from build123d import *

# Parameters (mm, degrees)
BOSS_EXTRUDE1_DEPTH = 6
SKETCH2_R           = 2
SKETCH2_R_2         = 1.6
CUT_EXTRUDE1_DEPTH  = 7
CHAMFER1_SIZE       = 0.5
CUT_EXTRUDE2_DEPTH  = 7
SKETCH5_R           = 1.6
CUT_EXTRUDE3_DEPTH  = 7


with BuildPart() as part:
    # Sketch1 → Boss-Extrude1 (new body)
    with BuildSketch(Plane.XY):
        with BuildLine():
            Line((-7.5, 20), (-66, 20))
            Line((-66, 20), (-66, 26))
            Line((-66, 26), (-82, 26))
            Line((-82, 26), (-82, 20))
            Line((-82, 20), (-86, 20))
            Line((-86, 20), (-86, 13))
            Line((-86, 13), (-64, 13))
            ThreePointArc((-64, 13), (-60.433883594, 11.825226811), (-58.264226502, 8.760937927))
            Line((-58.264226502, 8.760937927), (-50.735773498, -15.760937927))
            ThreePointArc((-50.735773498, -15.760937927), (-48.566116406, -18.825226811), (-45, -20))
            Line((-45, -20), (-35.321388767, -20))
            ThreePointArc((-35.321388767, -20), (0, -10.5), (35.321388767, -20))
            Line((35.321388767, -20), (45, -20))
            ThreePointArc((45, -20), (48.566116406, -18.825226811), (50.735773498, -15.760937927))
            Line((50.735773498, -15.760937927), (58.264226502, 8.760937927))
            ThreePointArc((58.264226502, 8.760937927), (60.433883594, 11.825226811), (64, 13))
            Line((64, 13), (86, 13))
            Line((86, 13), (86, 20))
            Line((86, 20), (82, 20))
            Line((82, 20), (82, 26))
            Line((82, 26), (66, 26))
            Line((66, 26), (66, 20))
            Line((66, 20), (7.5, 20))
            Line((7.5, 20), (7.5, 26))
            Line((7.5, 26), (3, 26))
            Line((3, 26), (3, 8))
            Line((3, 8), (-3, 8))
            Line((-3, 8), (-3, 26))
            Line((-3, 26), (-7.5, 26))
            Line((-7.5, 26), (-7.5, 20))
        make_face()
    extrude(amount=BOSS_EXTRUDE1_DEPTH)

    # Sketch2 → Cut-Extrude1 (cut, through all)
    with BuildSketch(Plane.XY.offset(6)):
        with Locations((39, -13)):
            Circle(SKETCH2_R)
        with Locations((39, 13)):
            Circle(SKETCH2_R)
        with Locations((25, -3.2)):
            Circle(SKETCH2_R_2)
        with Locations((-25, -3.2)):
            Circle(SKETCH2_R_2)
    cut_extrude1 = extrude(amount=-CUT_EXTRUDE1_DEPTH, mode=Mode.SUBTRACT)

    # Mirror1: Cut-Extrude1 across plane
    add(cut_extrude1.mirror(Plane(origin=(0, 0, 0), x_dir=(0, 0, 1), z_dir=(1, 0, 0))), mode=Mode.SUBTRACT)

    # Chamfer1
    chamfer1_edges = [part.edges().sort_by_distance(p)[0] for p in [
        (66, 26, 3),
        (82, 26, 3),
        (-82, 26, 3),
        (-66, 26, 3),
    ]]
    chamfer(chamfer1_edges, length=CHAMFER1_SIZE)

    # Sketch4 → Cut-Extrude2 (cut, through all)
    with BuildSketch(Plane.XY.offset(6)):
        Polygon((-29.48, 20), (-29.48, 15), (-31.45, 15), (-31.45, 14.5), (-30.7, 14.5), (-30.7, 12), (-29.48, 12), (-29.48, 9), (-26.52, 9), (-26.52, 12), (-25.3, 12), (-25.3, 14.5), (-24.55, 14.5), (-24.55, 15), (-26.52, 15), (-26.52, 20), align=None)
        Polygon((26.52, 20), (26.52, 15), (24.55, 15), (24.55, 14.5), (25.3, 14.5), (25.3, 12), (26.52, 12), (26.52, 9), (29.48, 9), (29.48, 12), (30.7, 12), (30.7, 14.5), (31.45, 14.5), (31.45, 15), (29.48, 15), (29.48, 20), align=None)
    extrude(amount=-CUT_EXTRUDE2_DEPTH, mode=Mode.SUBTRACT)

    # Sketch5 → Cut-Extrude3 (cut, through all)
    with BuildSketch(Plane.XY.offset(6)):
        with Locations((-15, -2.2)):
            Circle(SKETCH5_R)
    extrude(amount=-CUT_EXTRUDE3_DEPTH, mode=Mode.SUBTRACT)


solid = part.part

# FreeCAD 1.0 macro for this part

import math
import FreeCAD as App
import Part
import Sketcher


def edges_at(feature, points):
    """Names of the edges that pass closest to the given points."""
    edges = feature.Shape.Edges
    near = lambda p: min(range(len(edges)), key=lambda i: edges[i].distToShape(Part.Vertex(*p))[0])
    return sorted({f"Edge{near(p) + 1}" for p in points})

doc = App.newDocument("Part")
body = doc.addObject("PartDesign::Body", "Body")

# Sketch on XY plane
sketch1 = body.newObject("Sketcher::SketchObject", "Sketch")
sketch1.AttachmentSupport = (doc.getObject("XY_Plane"), [""])
sketch1.MapMode = "FlatFace"
sketch1.addGeometry([
    Part.LineSegment(App.Vector(-7.5, 20, 0), App.Vector(-66, 20, 0)),  # 0
    Part.LineSegment(App.Vector(-66, 20, 0), App.Vector(-66, 26, 0)),  # 1
    Part.LineSegment(App.Vector(-66, 26, 0), App.Vector(-82, 26, 0)),  # 2
    Part.LineSegment(App.Vector(-82, 26, 0), App.Vector(-82, 20, 0)),  # 3
    Part.LineSegment(App.Vector(-82, 20, 0), App.Vector(-86, 20, 0)),  # 4
    Part.LineSegment(App.Vector(-86, 20, 0), App.Vector(-86, 13, 0)),  # 5
    Part.LineSegment(App.Vector(-86, 13, 0), App.Vector(-64, 13, 0)),  # 6
    Part.ArcOfCircle(Part.Circle(App.Vector(-64, 7, 0), App.Vector(0, 0, 1), 6), math.radians(17), math.radians(90)),  # 7
    Part.LineSegment(App.Vector(-58.3, 8.8, 0), App.Vector(-50.7, -15.8, 0)),  # 8
    Part.ArcOfCircle(Part.Circle(App.Vector(-45, -14, 0), App.Vector(0, 0, 1), 6), math.radians(-163), math.radians(-90)),  # 9
    Part.LineSegment(App.Vector(-45, -20, 0), App.Vector(-35.3, -20, 0)),  # 10
    Part.ArcOfCircle(Part.Circle(App.Vector(0, -80.9, 0), App.Vector(0, 0, 1), 70.4), math.radians(60), math.radians(120)),  # 11
    Part.LineSegment(App.Vector(35.3, -20, 0), App.Vector(45, -20, 0)),  # 12
    Part.ArcOfCircle(Part.Circle(App.Vector(45, -14, 0), App.Vector(0, 0, 1), 6), math.radians(-90), math.radians(-17)),  # 13
    Part.LineSegment(App.Vector(50.7, -15.8, 0), App.Vector(58.3, 8.8, 0)),  # 14
    Part.ArcOfCircle(Part.Circle(App.Vector(64, 7, 0), App.Vector(0, 0, 1), 6), math.radians(90), math.radians(163)),  # 15
    Part.LineSegment(App.Vector(64, 13, 0), App.Vector(86, 13, 0)),  # 16
    Part.LineSegment(App.Vector(86, 13, 0), App.Vector(86, 20, 0)),  # 17
    Part.LineSegment(App.Vector(86, 20, 0), App.Vector(82, 20, 0)),  # 18
    Part.LineSegment(App.Vector(82, 20, 0), App.Vector(82, 26, 0)),  # 19
    Part.LineSegment(App.Vector(82, 26, 0), App.Vector(66, 26, 0)),  # 20
    Part.LineSegment(App.Vector(66, 26, 0), App.Vector(66, 20, 0)),  # 21
    Part.LineSegment(App.Vector(66, 20, 0), App.Vector(7.5, 20, 0)),  # 22
    Part.LineSegment(App.Vector(7.5, 20, 0), App.Vector(7.5, 26, 0)),  # 23
    Part.LineSegment(App.Vector(7.5, 26, 0), App.Vector(3, 26, 0)),  # 24
    Part.LineSegment(App.Vector(3, 26, 0), App.Vector(3, 8, 0)),  # 25
    Part.LineSegment(App.Vector(3, 8, 0), App.Vector(-3, 8, 0)),  # 26
    Part.LineSegment(App.Vector(-3, 8, 0), App.Vector(-3, 26, 0)),  # 27
    Part.LineSegment(App.Vector(-3, 26, 0), App.Vector(-7.5, 26, 0)),  # 28
    Part.LineSegment(App.Vector(-7.5, 26, 0), App.Vector(-7.5, 20, 0)),  # 29
], False)
sketch1.addConstraint([
    Sketcher.Constraint("Coincident", 0, 2, 1, 1),
    Sketcher.Constraint("Coincident", 1, 2, 2, 1),
    Sketcher.Constraint("Coincident", 2, 2, 3, 1),
    Sketcher.Constraint("Coincident", 3, 2, 4, 1),
    Sketcher.Constraint("Coincident", 4, 2, 5, 1),
    Sketcher.Constraint("Coincident", 5, 2, 6, 1),
    Sketcher.Constraint("Tangent", 6, 2, 7, 2),
    Sketcher.Constraint("Tangent", 7, 1, 8, 1),
    Sketcher.Constraint("Tangent", 8, 2, 9, 1),
    Sketcher.Constraint("Tangent", 9, 2, 10, 1),
    Sketcher.Constraint("Coincident", 10, 2, 11, 2),
    Sketcher.Constraint("Coincident", 11, 1, 12, 1),
    Sketcher.Constraint("Tangent", 12, 2, 13, 1),
    Sketcher.Constraint("Tangent", 13, 2, 14, 1),
    Sketcher.Constraint("Tangent", 14, 2, 15, 2),
    Sketcher.Constraint("Tangent", 15, 1, 16, 1),
    Sketcher.Constraint("Coincident", 16, 2, 17, 1),
    Sketcher.Constraint("Coincident", 17, 2, 18, 1),
    Sketcher.Constraint("Coincident", 18, 2, 19, 1),
    Sketcher.Constraint("Coincident", 19, 2, 20, 1),
    Sketcher.Constraint("Coincident", 20, 2, 21, 1),
    Sketcher.Constraint("Coincident", 21, 2, 22, 1),
    Sketcher.Constraint("Coincident", 22, 2, 23, 1),
    Sketcher.Constraint("Coincident", 23, 2, 24, 1),
    Sketcher.Constraint("Coincident", 24, 2, 25, 1),
    Sketcher.Constraint("Coincident", 25, 2, 26, 1),
    Sketcher.Constraint("Coincident", 26, 2, 27, 1),
    Sketcher.Constraint("Coincident", 27, 2, 28, 1),
    Sketcher.Constraint("Coincident", 28, 2, 29, 1),
    Sketcher.Constraint("Coincident", 29, 2, 0, 1),
    Sketcher.Constraint("Horizontal", 0),
    Sketcher.Constraint("Vertical", 1),
    Sketcher.Constraint("Horizontal", 2),
    Sketcher.Constraint("Vertical", 3),
    Sketcher.Constraint("Horizontal", 4),
    Sketcher.Constraint("Vertical", 5),
    Sketcher.Constraint("Horizontal", 6),
    Sketcher.Constraint("Horizontal", 10),
    Sketcher.Constraint("Horizontal", 12),
    Sketcher.Constraint("Horizontal", 16),
    Sketcher.Constraint("Vertical", 17),
    Sketcher.Constraint("Horizontal", 18),
    Sketcher.Constraint("Vertical", 19),
    Sketcher.Constraint("Horizontal", 20),
    Sketcher.Constraint("Vertical", 21),
    Sketcher.Constraint("Horizontal", 22),
    Sketcher.Constraint("Vertical", 23),
    Sketcher.Constraint("Horizontal", 24),
    Sketcher.Constraint("Vertical", 25),
    Sketcher.Constraint("Horizontal", 26),
    Sketcher.Constraint("Vertical", 27),
    Sketcher.Constraint("Horizontal", 28),
    Sketcher.Constraint("Vertical", 29),
    Sketcher.Constraint("Equal", 7, 9),
    Sketcher.Constraint("Equal", 9, 13),
    Sketcher.Constraint("Equal", 13, 15),
    Sketcher.Constraint("Symmetric", 9, 3, 13, 3, -2),
    Sketcher.Constraint("Symmetric", 7, 3, 15, 3, -2),
    Sketcher.Constraint("Symmetric", 4, 2, 17, 2, -2),
    Sketcher.Constraint("Symmetric", 2, 2, 19, 2, -2),
    Sketcher.Constraint("Symmetric", 0, 2, 21, 2, -2),
    Sketcher.Constraint("Symmetric", 24, 2, 27, 2, -2),
    Sketcher.Constraint("PointOnObject", 11, 3, -2),
    Sketcher.Constraint("Horizontal", 0, 2, 3, 2),
    Sketcher.Constraint("Horizontal", 20, 2, 23, 2),
    Sketcher.Constraint("Equal", 0, 22),
    Sketcher.Constraint("Equal", 26, 1),
    Sketcher.Constraint("Radius", 7, 6.0),
    Sketcher.Constraint("DistanceX", 2, 2, 2, 1, 16.0),
    Sketcher.Constraint("DistanceX", 4, 2, 4, 1, 4.0),
    Sketcher.Constraint("DistanceX", 6, 1, 6, 2, 22.0),
    Sketcher.Constraint("DistanceX", 26, 2, 26, 1, 6.0),
    Sketcher.Constraint("DistanceY", 5, 2, 5, 1, 7.0),
    Sketcher.Constraint("DistanceY", 25, 2, 25, 1, 18.0),
    Sketcher.Constraint("DistanceX", 0, 2, 0, 1, 58.5),
    Sketcher.Constraint("DistanceX", 24, 2, 24, 1, 4.5),
    Sketcher.Constraint("DistanceY", -1, 1, 7, 3, 7.0),
    Sketcher.Constraint("DistanceX", 9, 3, -1, 1, 45.0),
    Sketcher.Constraint("DistanceY", 9, 3, -1, 1, 14.0),
    Sketcher.Constraint("Radius", 11, 70.413184),
    Sketcher.Constraint("DistanceX", 10, 1, 10, 2, 9.678611),
])
pad1 = body.newObject("PartDesign::Pad", "Pad")
pad1.Profile = sketch1
pad1.Length = 6

# Sketch on XY plane
sketch2 = body.newObject("Sketcher::SketchObject", "Sketch001")
sketch2.AttachmentSupport = (doc.getObject("XY_Plane"), [""])
sketch2.MapMode = "FlatFace"
sketch2.AttachmentOffset = App.Placement(App.Vector(0, 0, 6), App.Rotation())
sketch2.addGeometry([
    Part.Circle(App.Vector(39, -13, 0), App.Vector(0, 0, 1), 2),
    Part.Circle(App.Vector(39, 13, 0), App.Vector(0, 0, 1), 2),
    Part.Circle(App.Vector(25, -3.2, 0), App.Vector(0, 0, 1), 1.6),
    Part.Circle(App.Vector(-25, -3.2, 0), App.Vector(0, 0, 1), 1.6),
], False)
sketch2.addConstraint([
    Sketcher.Constraint("Equal", 0, 1),
    Sketcher.Constraint("Equal", 2, 3),
    Sketcher.Constraint("Symmetric", 2, 3, 3, 3, -2),
    Sketcher.Constraint("Symmetric", 0, 3, 1, 3, -1),
    Sketcher.Constraint("Diameter", 0, 4.0),
    Sketcher.Constraint("Diameter", 2, 3.2),
    Sketcher.Constraint("DistanceX", -1, 1, 0, 3, 39.0),
    Sketcher.Constraint("DistanceY", 0, 3, -1, 1, 13.0),
    Sketcher.Constraint("DistanceX", -1, 1, 2, 3, 25.0),
    Sketcher.Constraint("DistanceY", 2, 3, -1, 1, 3.2),
])
pocket1 = body.newObject("PartDesign::Pocket", "Pocket")
pocket1.Profile = sketch2
pocket1.Type = "ThroughAll"
doc.recompute()

mirrored = body.newObject("PartDesign::Mirrored", "Mirrored")
mirrored.Originals = [pocket1]
mirrored.MirrorPlane = (doc.getObject("YZ_Plane"), [""])
body.Tip = mirrored
doc.recompute()

chamfer = body.newObject("PartDesign::Chamfer", "Chamfer")
chamfer.Base = (mirrored, edges_at(mirrored, [
    (66, 26, 3),
    (82, 26, 3),
    (-82, 26, 3),
    (-66, 26, 3),
]))
chamfer.Size = 0.5

# Sketch on XY plane
sketch3 = body.newObject("Sketcher::SketchObject", "Sketch002")
sketch3.AttachmentSupport = (doc.getObject("XY_Plane"), [""])
sketch3.MapMode = "FlatFace"
sketch3.AttachmentOffset = App.Placement(App.Vector(0, 0, 6), App.Rotation())
sketch3.addGeometry([
    Part.LineSegment(App.Vector(-29.5, 20, 0), App.Vector(-29.5, 15, 0)),  # 0
    Part.LineSegment(App.Vector(-29.5, 15, 0), App.Vector(-31.4, 15, 0)),  # 1
    Part.LineSegment(App.Vector(-31.4, 15, 0), App.Vector(-31.4, 14.5, 0)),  # 2
    Part.LineSegment(App.Vector(-31.4, 14.5, 0), App.Vector(-30.7, 14.5, 0)),  # 3
    Part.LineSegment(App.Vector(-30.7, 14.5, 0), App.Vector(-30.7, 12, 0)),  # 4
    Part.LineSegment(App.Vector(-30.7, 12, 0), App.Vector(-29.5, 12, 0)),  # 5
    Part.LineSegment(App.Vector(-29.5, 12, 0), App.Vector(-29.5, 9, 0)),  # 6
    Part.LineSegment(App.Vector(-29.5, 9, 0), App.Vector(-26.5, 9, 0)),  # 7
    Part.LineSegment(App.Vector(-26.5, 9, 0), App.Vector(-26.5, 12, 0)),  # 8
    Part.LineSegment(App.Vector(-26.5, 12, 0), App.Vector(-25.3, 12, 0)),  # 9
    Part.LineSegment(App.Vector(-25.3, 12, 0), App.Vector(-25.3, 14.5, 0)),  # 10
    Part.LineSegment(App.Vector(-25.3, 14.5, 0), App.Vector(-24.6, 14.5, 0)),  # 11
    Part.LineSegment(App.Vector(-24.6, 14.5, 0), App.Vector(-24.6, 15, 0)),  # 12
    Part.LineSegment(App.Vector(-24.6, 15, 0), App.Vector(-26.5, 15, 0)),  # 13
    Part.LineSegment(App.Vector(-26.5, 15, 0), App.Vector(-26.5, 20, 0)),  # 14
    Part.LineSegment(App.Vector(-26.5, 20, 0), App.Vector(-29.5, 20, 0)),  # 15
    Part.LineSegment(App.Vector(26.5, 20, 0), App.Vector(26.5, 15, 0)),  # 16
    Part.LineSegment(App.Vector(26.5, 15, 0), App.Vector(24.6, 15, 0)),  # 17
    Part.LineSegment(App.Vector(24.6, 15, 0), App.Vector(24.6, 14.5, 0)),  # 18
    Part.LineSegment(App.Vector(24.6, 14.5, 0), App.Vector(25.3, 14.5, 0)),  # 19
    Part.LineSegment(App.Vector(25.3, 14.5, 0), App.Vector(25.3, 12, 0)),  # 20
    Part.LineSegment(App.Vector(25.3, 12, 0), App.Vector(26.5, 12, 0)),  # 21
    Part.LineSegment(App.Vector(26.5, 12, 0), App.Vector(26.5, 9, 0)),  # 22
    Part.LineSegment(App.Vector(26.5, 9, 0), App.Vector(29.5, 9, 0)),  # 23
    Part.LineSegment(App.Vector(29.5, 9, 0), App.Vector(29.5, 12, 0)),  # 24
    Part.LineSegment(App.Vector(29.5, 12, 0), App.Vector(30.7, 12, 0)),  # 25
    Part.LineSegment(App.Vector(30.7, 12, 0), App.Vector(30.7, 14.5, 0)),  # 26
    Part.LineSegment(App.Vector(30.7, 14.5, 0), App.Vector(31.4, 14.5, 0)),  # 27
    Part.LineSegment(App.Vector(31.4, 14.5, 0), App.Vector(31.4, 15, 0)),  # 28
    Part.LineSegment(App.Vector(31.4, 15, 0), App.Vector(29.5, 15, 0)),  # 29
    Part.LineSegment(App.Vector(29.5, 15, 0), App.Vector(29.5, 20, 0)),  # 30
    Part.LineSegment(App.Vector(29.5, 20, 0), App.Vector(26.5, 20, 0)),  # 31
], False)
sketch3.addConstraint([
    Sketcher.Constraint("Coincident", 0, 2, 1, 1),
    Sketcher.Constraint("Coincident", 1, 2, 2, 1),
    Sketcher.Constraint("Coincident", 2, 2, 3, 1),
    Sketcher.Constraint("Coincident", 3, 2, 4, 1),
    Sketcher.Constraint("Coincident", 4, 2, 5, 1),
    Sketcher.Constraint("Coincident", 5, 2, 6, 1),
    Sketcher.Constraint("Coincident", 6, 2, 7, 1),
    Sketcher.Constraint("Coincident", 7, 2, 8, 1),
    Sketcher.Constraint("Coincident", 8, 2, 9, 1),
    Sketcher.Constraint("Coincident", 9, 2, 10, 1),
    Sketcher.Constraint("Coincident", 10, 2, 11, 1),
    Sketcher.Constraint("Coincident", 11, 2, 12, 1),
    Sketcher.Constraint("Coincident", 12, 2, 13, 1),
    Sketcher.Constraint("Coincident", 13, 2, 14, 1),
    Sketcher.Constraint("Coincident", 14, 2, 15, 1),
    Sketcher.Constraint("Coincident", 15, 2, 0, 1),
    Sketcher.Constraint("Coincident", 16, 2, 17, 1),
    Sketcher.Constraint("Coincident", 17, 2, 18, 1),
    Sketcher.Constraint("Coincident", 18, 2, 19, 1),
    Sketcher.Constraint("Coincident", 19, 2, 20, 1),
    Sketcher.Constraint("Coincident", 20, 2, 21, 1),
    Sketcher.Constraint("Coincident", 21, 2, 22, 1),
    Sketcher.Constraint("Coincident", 22, 2, 23, 1),
    Sketcher.Constraint("Coincident", 23, 2, 24, 1),
    Sketcher.Constraint("Coincident", 24, 2, 25, 1),
    Sketcher.Constraint("Coincident", 25, 2, 26, 1),
    Sketcher.Constraint("Coincident", 26, 2, 27, 1),
    Sketcher.Constraint("Coincident", 27, 2, 28, 1),
    Sketcher.Constraint("Coincident", 28, 2, 29, 1),
    Sketcher.Constraint("Coincident", 29, 2, 30, 1),
    Sketcher.Constraint("Coincident", 30, 2, 31, 1),
    Sketcher.Constraint("Coincident", 31, 2, 16, 1),
    Sketcher.Constraint("Vertical", 0),
    Sketcher.Constraint("Horizontal", 1),
    Sketcher.Constraint("Vertical", 2),
    Sketcher.Constraint("Horizontal", 3),
    Sketcher.Constraint("Vertical", 4),
    Sketcher.Constraint("Horizontal", 5),
    Sketcher.Constraint("Vertical", 6),
    Sketcher.Constraint("Horizontal", 7),
    Sketcher.Constraint("Vertical", 8),
    Sketcher.Constraint("Horizontal", 9),
    Sketcher.Constraint("Vertical", 10),
    Sketcher.Constraint("Horizontal", 11),
    Sketcher.Constraint("Vertical", 12),
    Sketcher.Constraint("Horizontal", 13),
    Sketcher.Constraint("Vertical", 14),
    Sketcher.Constraint("Horizontal", 15),
    Sketcher.Constraint("Vertical", 16),
    Sketcher.Constraint("Horizontal", 17),
    Sketcher.Constraint("Vertical", 18),
    Sketcher.Constraint("Horizontal", 19),
    Sketcher.Constraint("Vertical", 20),
    Sketcher.Constraint("Horizontal", 21),
    Sketcher.Constraint("Vertical", 22),
    Sketcher.Constraint("Horizontal", 23),
    Sketcher.Constraint("Vertical", 24),
    Sketcher.Constraint("Horizontal", 25),
    Sketcher.Constraint("Vertical", 26),
    Sketcher.Constraint("Horizontal", 27),
    Sketcher.Constraint("Vertical", 28),
    Sketcher.Constraint("Horizontal", 29),
    Sketcher.Constraint("Vertical", 30),
    Sketcher.Constraint("Horizontal", 31),
    Sketcher.Constraint("Symmetric", 13, 2, 16, 2, -2),
    Sketcher.Constraint("Symmetric", 11, 2, 18, 2, -2),
    Sketcher.Constraint("Symmetric", 9, 2, 20, 2, -2),
    Sketcher.Constraint("Symmetric", 7, 2, 22, 2, -2),
    Sketcher.Constraint("Symmetric", 5, 2, 24, 2, -2),
    Sketcher.Constraint("Symmetric", 3, 2, 26, 2, -2),
    Sketcher.Constraint("Symmetric", 1, 2, 28, 2, -2),
    Sketcher.Constraint("Symmetric", 15, 2, 30, 2, -2),
    Sketcher.Constraint("Horizontal", 5, 2, 8, 2),
    Sketcher.Constraint("Horizontal", 3, 2, 10, 2),
    Sketcher.Constraint("Horizontal", 1, 2, 12, 2),
    Sketcher.Constraint("Vertical", 0, 2, 5, 2),
    Sketcher.Constraint("Vertical", 8, 2, 13, 2),
    Sketcher.Constraint("Equal", 5, 9),
    Sketcher.Constraint("Equal", 3, 11),
    Sketcher.Constraint("DistanceY", 0, 2, 0, 1, 5.0),
    Sketcher.Constraint("DistanceY", 6, 2, 6, 1, 3.0),
    Sketcher.Constraint("DistanceY", 2, 2, 2, 1, 0.5),
    Sketcher.Constraint("DistanceY", 4, 2, 4, 1, 2.5),
    Sketcher.Constraint("DistanceY", -1, 1, 0, 2, 15.0),
    Sketcher.Constraint("DistanceX", 1, 2, 1, 1, 1.97),
    Sketcher.Constraint("DistanceX", 3, 1, 3, 2, 0.75),
    Sketcher.Constraint("DistanceX", 7, 1, 7, 2, 2.96),
    Sketcher.Constraint("DistanceX", 3, 2, -1, 1, 30.7),
])
pocket2 = body.newObject("PartDesign::Pocket", "Pocket001")
pocket2.Profile = sketch3
pocket2.Type = "ThroughAll"

# Sketch on XY plane
sketch4 = body.newObject("Sketcher::SketchObject", "Sketch003")
sketch4.AttachmentSupport = (doc.getObject("XY_Plane"), [""])
sketch4.MapMode = "FlatFace"
sketch4.AttachmentOffset = App.Placement(App.Vector(0, 0, 6), App.Rotation())
sketch4.addGeometry(Part.Circle(App.Vector(-15, -2.2, 0), App.Vector(0, 0, 1), 1.6), False)
sketch4.addConstraint([
    Sketcher.Constraint("Diameter", 0, 3.2),
    Sketcher.Constraint("DistanceX", 0, 3, -1, 1, 15.0),
    Sketcher.Constraint("DistanceY", 0, 3, -1, 1, 2.2),
])
pocket3 = body.newObject("PartDesign::Pocket", "Pocket002")
pocket3.Profile = sketch4
pocket3.Type = "ThroughAll"

doc.recompute()
